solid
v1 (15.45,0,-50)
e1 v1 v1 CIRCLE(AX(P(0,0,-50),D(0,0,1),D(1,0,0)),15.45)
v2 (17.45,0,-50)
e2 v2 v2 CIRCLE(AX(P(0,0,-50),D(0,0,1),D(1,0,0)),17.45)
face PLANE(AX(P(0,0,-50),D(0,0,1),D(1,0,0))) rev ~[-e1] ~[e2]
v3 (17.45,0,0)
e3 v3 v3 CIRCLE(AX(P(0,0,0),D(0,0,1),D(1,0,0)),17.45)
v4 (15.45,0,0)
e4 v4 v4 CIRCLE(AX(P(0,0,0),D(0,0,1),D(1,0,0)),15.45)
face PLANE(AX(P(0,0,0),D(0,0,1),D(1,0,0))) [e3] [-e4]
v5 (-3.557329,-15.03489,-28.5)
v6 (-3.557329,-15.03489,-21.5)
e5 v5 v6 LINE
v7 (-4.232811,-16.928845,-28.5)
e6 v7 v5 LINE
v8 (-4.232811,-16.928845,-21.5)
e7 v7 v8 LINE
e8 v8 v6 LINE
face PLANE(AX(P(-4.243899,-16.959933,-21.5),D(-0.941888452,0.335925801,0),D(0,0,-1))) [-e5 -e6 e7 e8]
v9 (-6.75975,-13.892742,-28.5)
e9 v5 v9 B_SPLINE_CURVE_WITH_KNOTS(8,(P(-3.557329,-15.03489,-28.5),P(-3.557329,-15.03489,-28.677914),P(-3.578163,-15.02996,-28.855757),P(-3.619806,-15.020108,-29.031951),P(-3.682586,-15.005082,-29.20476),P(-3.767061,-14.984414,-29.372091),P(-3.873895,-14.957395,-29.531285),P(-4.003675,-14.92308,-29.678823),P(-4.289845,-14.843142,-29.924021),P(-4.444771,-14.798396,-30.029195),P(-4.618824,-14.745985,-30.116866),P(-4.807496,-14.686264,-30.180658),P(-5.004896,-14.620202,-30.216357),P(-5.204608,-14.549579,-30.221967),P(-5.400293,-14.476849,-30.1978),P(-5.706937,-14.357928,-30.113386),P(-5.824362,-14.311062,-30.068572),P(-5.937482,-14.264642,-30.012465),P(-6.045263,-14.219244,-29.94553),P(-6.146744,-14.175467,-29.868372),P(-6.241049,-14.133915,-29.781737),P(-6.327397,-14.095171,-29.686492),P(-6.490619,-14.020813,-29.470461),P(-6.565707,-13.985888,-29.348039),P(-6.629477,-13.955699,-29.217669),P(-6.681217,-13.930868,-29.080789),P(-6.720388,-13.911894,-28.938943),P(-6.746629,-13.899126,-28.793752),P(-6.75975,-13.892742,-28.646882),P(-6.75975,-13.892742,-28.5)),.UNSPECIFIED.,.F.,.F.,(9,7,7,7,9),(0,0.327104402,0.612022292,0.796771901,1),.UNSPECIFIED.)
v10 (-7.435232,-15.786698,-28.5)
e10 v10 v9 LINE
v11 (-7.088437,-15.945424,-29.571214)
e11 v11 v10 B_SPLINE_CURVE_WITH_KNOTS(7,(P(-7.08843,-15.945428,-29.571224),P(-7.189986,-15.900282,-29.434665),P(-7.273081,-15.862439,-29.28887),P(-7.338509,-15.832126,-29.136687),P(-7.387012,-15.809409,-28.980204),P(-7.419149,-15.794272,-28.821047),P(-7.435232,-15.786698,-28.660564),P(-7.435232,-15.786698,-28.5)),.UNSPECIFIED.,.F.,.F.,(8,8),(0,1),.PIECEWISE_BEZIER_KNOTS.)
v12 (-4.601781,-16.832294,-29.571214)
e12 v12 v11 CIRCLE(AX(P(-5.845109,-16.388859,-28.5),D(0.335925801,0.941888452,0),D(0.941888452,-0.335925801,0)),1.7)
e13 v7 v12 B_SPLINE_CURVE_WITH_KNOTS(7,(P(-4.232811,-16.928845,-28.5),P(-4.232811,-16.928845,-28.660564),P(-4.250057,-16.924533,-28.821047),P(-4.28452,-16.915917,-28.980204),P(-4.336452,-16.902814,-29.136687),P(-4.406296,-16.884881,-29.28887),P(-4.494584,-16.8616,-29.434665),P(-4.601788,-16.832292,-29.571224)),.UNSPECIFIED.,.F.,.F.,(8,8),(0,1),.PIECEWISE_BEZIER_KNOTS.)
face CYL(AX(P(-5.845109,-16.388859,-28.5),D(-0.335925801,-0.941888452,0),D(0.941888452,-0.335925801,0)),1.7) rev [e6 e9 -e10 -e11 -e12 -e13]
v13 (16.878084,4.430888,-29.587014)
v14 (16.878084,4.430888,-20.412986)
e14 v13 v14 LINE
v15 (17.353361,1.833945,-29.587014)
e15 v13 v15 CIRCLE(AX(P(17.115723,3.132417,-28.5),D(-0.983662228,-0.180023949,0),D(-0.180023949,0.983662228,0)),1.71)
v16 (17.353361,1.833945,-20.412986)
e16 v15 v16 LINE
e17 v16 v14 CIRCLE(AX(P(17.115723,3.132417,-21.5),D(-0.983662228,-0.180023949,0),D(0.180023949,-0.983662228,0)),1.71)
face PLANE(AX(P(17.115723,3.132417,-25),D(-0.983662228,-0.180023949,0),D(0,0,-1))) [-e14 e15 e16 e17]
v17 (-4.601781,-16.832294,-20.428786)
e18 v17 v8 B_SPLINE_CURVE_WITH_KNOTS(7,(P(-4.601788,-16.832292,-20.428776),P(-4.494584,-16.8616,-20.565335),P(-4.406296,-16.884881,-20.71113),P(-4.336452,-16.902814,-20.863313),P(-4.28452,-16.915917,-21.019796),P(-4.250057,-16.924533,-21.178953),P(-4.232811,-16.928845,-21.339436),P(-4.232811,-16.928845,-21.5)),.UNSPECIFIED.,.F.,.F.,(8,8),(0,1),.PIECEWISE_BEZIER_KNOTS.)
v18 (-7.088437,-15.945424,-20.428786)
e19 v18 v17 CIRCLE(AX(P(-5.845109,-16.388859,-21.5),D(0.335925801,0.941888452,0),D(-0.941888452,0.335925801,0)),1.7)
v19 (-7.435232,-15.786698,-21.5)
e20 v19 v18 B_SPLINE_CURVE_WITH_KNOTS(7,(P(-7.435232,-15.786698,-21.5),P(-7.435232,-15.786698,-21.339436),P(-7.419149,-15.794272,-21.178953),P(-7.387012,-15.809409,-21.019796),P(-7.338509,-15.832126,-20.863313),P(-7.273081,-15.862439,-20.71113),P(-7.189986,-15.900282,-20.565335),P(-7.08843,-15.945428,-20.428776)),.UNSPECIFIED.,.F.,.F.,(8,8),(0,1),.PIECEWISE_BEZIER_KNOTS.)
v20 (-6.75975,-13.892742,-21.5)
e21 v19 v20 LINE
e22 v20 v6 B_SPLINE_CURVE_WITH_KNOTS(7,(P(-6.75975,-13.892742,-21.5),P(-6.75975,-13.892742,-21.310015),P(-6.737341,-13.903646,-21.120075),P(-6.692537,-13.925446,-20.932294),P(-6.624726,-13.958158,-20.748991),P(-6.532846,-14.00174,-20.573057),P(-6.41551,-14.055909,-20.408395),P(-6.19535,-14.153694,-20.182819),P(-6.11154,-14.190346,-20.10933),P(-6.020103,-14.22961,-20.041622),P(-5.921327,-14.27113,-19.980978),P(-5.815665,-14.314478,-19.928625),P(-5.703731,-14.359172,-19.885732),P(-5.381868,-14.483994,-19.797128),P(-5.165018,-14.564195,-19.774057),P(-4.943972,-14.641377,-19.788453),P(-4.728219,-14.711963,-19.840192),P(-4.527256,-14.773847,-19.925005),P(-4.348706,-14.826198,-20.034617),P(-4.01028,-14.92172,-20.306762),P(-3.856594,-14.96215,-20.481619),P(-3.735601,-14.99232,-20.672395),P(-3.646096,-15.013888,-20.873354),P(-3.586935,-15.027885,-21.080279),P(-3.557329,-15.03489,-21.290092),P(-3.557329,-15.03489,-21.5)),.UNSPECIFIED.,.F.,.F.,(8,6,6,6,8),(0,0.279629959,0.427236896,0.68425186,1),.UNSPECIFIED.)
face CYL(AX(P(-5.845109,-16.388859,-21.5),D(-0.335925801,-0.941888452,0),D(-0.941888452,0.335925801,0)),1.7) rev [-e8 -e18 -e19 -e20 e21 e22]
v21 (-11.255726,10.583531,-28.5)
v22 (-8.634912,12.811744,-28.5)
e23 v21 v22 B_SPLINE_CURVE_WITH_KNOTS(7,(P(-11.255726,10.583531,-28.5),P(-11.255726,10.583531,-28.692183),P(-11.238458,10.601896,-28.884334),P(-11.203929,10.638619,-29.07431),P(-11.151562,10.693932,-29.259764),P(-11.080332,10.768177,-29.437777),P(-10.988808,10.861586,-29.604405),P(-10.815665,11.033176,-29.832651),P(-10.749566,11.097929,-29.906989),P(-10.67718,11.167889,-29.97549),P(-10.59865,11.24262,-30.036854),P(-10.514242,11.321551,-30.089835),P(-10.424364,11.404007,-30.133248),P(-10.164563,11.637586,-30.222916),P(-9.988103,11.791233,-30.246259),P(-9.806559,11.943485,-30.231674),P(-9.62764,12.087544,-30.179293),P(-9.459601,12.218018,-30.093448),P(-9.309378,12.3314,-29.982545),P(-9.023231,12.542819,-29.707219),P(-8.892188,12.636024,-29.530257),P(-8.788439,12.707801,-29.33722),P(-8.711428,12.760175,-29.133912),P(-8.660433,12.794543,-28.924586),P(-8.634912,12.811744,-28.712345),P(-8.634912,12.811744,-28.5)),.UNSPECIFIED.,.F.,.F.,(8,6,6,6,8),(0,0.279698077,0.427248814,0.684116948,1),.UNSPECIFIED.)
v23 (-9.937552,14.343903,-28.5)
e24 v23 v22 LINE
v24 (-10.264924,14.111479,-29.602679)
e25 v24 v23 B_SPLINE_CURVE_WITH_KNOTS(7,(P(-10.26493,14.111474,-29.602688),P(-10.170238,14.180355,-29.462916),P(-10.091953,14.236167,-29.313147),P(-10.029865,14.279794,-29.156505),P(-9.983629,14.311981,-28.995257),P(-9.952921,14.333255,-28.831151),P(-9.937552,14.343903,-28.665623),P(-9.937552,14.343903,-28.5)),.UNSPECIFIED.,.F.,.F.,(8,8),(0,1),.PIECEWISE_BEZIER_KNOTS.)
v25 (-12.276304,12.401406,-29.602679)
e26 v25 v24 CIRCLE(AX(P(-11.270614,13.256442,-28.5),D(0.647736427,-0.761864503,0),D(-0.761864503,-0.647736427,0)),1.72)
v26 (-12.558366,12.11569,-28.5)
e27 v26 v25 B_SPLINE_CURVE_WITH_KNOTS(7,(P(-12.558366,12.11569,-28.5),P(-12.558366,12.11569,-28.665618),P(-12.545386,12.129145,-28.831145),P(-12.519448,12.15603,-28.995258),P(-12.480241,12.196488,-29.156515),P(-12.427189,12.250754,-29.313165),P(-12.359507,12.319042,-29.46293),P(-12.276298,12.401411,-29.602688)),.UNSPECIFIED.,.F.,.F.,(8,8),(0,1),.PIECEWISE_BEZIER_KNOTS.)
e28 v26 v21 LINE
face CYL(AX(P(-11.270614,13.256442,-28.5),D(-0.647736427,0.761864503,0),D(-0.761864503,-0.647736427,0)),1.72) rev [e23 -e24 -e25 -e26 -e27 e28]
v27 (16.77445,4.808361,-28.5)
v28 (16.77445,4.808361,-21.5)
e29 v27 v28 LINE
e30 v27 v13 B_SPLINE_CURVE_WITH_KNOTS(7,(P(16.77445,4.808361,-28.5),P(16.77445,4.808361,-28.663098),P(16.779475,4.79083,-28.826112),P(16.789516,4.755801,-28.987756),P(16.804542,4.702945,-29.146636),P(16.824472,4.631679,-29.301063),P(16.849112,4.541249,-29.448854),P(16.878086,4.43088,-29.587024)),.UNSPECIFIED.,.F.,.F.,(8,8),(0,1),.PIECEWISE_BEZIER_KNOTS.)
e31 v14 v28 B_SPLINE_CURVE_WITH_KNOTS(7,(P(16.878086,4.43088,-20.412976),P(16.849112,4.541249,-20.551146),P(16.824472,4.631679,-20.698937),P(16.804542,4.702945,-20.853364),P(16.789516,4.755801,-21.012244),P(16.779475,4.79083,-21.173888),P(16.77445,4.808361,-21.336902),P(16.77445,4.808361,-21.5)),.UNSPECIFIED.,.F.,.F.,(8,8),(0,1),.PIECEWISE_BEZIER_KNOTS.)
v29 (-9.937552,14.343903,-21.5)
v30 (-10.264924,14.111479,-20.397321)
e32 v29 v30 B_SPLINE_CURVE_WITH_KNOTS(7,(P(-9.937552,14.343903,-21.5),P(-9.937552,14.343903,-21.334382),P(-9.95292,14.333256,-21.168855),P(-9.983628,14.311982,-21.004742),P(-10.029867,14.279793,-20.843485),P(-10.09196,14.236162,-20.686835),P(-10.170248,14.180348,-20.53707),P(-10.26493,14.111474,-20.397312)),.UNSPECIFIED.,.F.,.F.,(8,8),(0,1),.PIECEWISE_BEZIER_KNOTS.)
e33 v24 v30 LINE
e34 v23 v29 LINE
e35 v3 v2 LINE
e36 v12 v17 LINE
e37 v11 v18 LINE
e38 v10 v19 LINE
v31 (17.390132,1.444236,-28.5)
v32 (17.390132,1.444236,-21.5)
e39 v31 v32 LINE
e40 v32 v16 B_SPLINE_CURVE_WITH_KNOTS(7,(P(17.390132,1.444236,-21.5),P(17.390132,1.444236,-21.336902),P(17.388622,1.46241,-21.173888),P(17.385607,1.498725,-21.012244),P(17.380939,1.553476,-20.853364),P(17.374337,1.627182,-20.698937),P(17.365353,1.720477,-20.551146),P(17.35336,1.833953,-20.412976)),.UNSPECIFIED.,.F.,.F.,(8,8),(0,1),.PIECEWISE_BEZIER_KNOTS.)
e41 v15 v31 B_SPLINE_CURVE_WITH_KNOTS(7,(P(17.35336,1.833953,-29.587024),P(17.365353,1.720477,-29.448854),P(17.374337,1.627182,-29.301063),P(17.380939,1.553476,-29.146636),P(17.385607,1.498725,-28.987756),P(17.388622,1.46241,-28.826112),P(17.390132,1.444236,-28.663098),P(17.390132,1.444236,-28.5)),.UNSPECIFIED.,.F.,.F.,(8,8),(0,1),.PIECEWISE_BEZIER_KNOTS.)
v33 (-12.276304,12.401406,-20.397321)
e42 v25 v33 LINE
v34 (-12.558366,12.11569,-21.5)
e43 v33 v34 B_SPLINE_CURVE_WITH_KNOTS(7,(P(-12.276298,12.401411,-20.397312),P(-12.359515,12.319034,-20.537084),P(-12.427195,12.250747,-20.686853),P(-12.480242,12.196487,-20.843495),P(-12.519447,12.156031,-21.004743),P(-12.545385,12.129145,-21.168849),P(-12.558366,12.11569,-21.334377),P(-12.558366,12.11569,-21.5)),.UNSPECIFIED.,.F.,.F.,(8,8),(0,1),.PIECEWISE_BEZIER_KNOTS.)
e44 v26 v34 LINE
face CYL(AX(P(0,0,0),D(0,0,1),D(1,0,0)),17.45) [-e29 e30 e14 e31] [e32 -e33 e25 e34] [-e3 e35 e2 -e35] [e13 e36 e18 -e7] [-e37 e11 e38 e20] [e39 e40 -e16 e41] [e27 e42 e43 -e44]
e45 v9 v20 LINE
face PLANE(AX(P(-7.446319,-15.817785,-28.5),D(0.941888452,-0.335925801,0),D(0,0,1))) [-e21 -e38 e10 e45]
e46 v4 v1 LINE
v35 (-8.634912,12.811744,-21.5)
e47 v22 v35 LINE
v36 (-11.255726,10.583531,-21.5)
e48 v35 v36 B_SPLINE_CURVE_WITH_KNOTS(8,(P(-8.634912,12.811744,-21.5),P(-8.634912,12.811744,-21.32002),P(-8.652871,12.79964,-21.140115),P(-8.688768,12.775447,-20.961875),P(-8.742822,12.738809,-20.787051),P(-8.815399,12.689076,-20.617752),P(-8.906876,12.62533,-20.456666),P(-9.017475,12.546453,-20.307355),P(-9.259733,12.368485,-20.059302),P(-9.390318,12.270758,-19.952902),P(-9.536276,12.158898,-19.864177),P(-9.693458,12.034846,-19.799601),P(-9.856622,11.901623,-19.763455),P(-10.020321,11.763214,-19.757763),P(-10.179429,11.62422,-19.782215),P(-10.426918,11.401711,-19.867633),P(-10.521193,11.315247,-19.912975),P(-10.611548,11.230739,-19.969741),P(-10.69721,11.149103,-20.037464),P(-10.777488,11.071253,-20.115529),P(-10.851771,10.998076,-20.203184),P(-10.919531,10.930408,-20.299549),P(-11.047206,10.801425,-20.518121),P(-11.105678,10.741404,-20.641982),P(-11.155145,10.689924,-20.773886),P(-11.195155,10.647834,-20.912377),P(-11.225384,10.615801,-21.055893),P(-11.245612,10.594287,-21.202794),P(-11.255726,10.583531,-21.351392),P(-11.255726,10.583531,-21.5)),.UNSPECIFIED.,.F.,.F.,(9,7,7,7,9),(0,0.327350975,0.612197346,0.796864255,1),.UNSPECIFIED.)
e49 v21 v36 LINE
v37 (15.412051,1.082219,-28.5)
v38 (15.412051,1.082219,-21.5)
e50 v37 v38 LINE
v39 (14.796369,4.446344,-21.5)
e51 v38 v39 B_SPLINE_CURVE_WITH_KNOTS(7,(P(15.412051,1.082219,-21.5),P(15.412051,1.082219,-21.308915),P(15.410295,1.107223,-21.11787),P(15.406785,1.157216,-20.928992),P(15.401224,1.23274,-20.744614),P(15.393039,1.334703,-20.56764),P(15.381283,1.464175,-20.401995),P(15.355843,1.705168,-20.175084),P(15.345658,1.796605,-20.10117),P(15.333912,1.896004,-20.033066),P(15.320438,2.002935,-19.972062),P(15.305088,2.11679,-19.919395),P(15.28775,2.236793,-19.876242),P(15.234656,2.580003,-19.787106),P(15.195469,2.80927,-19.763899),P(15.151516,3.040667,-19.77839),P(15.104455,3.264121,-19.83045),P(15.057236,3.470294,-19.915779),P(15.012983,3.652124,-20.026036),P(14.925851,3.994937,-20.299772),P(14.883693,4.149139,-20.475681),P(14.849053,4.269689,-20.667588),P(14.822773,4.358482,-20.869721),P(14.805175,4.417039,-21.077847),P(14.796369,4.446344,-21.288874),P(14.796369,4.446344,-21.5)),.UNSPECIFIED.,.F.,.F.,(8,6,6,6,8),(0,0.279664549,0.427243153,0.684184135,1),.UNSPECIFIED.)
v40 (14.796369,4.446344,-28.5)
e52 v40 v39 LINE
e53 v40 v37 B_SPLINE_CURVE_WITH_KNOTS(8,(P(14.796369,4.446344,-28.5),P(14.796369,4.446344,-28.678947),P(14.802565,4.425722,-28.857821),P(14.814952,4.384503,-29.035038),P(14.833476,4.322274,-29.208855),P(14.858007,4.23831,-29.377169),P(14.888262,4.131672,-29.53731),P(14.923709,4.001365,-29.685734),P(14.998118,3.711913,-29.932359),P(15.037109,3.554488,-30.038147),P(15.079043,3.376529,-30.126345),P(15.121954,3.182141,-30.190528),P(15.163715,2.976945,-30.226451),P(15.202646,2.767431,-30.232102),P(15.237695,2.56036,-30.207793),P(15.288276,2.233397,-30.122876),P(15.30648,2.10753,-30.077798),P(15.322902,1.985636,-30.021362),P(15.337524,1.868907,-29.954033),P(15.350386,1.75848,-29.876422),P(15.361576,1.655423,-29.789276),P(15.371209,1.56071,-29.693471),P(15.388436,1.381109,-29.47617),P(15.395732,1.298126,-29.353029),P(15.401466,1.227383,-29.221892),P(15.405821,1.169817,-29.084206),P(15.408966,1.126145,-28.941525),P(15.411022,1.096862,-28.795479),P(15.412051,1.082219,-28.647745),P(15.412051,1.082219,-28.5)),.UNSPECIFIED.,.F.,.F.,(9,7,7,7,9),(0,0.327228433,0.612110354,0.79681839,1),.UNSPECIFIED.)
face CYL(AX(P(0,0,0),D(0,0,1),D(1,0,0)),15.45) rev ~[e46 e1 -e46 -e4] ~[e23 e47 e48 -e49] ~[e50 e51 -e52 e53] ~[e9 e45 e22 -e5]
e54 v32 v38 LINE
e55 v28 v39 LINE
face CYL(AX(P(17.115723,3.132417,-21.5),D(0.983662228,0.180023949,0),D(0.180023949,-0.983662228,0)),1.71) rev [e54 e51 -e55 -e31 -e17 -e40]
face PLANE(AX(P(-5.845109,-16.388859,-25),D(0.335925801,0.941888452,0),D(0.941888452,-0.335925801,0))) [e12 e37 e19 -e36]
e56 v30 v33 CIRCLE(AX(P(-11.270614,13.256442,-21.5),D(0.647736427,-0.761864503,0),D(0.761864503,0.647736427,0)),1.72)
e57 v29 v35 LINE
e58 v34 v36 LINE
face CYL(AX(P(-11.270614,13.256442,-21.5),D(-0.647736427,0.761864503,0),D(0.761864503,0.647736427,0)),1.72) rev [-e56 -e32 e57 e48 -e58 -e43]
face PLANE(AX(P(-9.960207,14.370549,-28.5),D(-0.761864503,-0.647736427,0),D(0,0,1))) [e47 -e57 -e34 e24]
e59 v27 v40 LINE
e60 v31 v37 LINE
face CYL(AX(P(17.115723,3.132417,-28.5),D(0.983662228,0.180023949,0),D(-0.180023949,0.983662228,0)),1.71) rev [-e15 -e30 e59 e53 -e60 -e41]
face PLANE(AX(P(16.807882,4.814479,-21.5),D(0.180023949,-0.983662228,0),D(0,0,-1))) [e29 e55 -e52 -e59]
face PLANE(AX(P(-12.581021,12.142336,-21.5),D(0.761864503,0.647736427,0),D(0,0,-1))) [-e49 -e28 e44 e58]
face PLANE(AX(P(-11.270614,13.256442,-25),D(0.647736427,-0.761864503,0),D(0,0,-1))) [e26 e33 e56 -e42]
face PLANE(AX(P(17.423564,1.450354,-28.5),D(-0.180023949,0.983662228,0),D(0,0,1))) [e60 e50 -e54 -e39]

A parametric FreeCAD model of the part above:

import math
import FreeCAD as App
import Part
import Sketcher
from FreeCAD import Vector

doc = App.newDocument("Part")
body = doc.addObject("PartDesign::Body", "Body")

sketch1 = body.newObject("Sketcher::SketchObject", "Sketch")
sketch1.AttachmentSupport = (doc.getObject("XY_Plane"), [""])
sketch1.MapMode = "FlatFace"
sketch1.addGeometry(Part.Circle(Vector(0, 0, 0), Vector(0, 0, 1), 17.45), False)
sketch1.addGeometry(Part.Circle(Vector(0, 0, 0), Vector(0, 0, 1), 15.45), False)
sketch1.addConstraint(Sketcher.Constraint("Coincident", 0, 3, -1, 1))
sketch1.addConstraint(Sketcher.Constraint("Coincident", 1, 3, -1, 1))
sketch1.addConstraint(Sketcher.Constraint("Diameter", 0, 34.9))
sketch1.addConstraint(Sketcher.Constraint("Diameter", 1, 30.9))
pad1 = body.newObject("PartDesign::Pad", "Pad")
pad1.Profile = sketch1
pad1.Length = 50
pad1.Reversed = True

sketch2 = body.newObject("Sketcher::SketchObject", "Sketch001")
sketch2.Placement = App.Placement(Vector(-5.845109, -16.388859, 0), App.Rotation(Vector(-0.941888452, 0.335925801, 0), Vector(0, 0, -1), Vector(-0.335925801, -0.941888452, 0), "ZXY"))
sketch2.addGeometry(Part.LineSegment(Vector(1.7, 21.5, 0), Vector(1.7, 28.5, 0)), False)
sketch2.addGeometry(Part.ArcOfCircle(Part.Circle(Vector(0, 28.5, 0), Vector(0, 0, 1), 1.7), math.radians(0), math.radians(180)), False)
sketch2.addGeometry(Part.LineSegment(Vector(-1.7, 28.5, 0), Vector(-1.7, 21.5, 0)), False)
sketch2.addGeometry(Part.ArcOfCircle(Part.Circle(Vector(0, 21.5, 0), Vector(0, 0, 1), 1.7), math.radians(180), math.radians(360)), False)
sketch2.addConstraint(Sketcher.Constraint("Tangent", 0, 2, 1, 1))
sketch2.addConstraint(Sketcher.Constraint("Tangent", 1, 2, 2, 1))
sketch2.addConstraint(Sketcher.Constraint("Tangent", 2, 2, 3, 1))
sketch2.addConstraint(Sketcher.Constraint("Tangent", 3, 2, 0, 1))
sketch2.addConstraint(Sketcher.Constraint("Vertical", 0))
sketch2.addConstraint(Sketcher.Constraint("Vertical", 2))
sketch2.addConstraint(Sketcher.Constraint("PointOnObject", 1, 3, -2))
sketch2.addConstraint(Sketcher.Constraint("Radius", 1, 1.7))
sketch2.addConstraint(Sketcher.Constraint("DistanceY", 0, 1, 0, 2, 7.0))
sketch2.addConstraint(Sketcher.Constraint("DistanceY", -1, 1, 1, 3, 28.5))
pocket1 = body.newObject("PartDesign::Pocket", "Pocket")
pocket1.Profile = sketch2
pocket1.Type = "UpToFirst"

sketch3 = body.newObject("Sketcher::SketchObject", "Sketch002")
sketch3.Placement = App.Placement(Vector(17.115723, 3.132417, 0), App.Rotation(Vector(0, 0, 1), Vector(0.180023949, -0.983662228, 0), Vector(0.983662228, 0.180023949, 0), "ZXY"))
sketch3.addGeometry(Part.LineSegment(Vector(-21.5, 1.71, 0), Vector(-28.5, 1.71, 0)), False)
sketch3.addGeometry(Part.ArcOfCircle(Part.Circle(Vector(-28.5, 0, 0), Vector(0, 0, 1), 1.71), math.radians(90), math.radians(270)), False)
sketch3.addGeometry(Part.LineSegment(Vector(-28.5, -1.71, 0), Vector(-21.5, -1.71, 0)), False)
sketch3.addGeometry(Part.ArcOfCircle(Part.Circle(Vector(-21.5, 0, 0), Vector(0, 0, 1), 1.71), math.radians(-90), math.radians(90)), False)
sketch3.addConstraint(Sketcher.Constraint("Tangent", 0, 2, 1, 1))
sketch3.addConstraint(Sketcher.Constraint("Tangent", 1, 2, 2, 1))
sketch3.addConstraint(Sketcher.Constraint("Tangent", 2, 2, 3, 1))
sketch3.addConstraint(Sketcher.Constraint("Tangent", 3, 2, 0, 1))
sketch3.addConstraint(Sketcher.Constraint("Horizontal", 0))
sketch3.addConstraint(Sketcher.Constraint("Horizontal", 2))
sketch3.addConstraint(Sketcher.Constraint("PointOnObject", 1, 3, -1))
sketch3.addConstraint(Sketcher.Constraint("DistanceX", 0, 2, 0, 1, 7.0))
sketch3.addConstraint(Sketcher.Constraint("Radius", 1, 1.71))
sketch3.addConstraint(Sketcher.Constraint("DistanceX", 1, 3, -1, 1, 28.5))
pocket2 = body.newObject("PartDesign::Pocket", "Pocket001")
pocket2.Profile = sketch3
pocket2.Length = 2.044923

sketch4 = body.newObject("Sketcher::SketchObject", "Sketch003")
sketch4.Placement = App.Placement(Vector(-11.270614, 13.256442, 0), App.Rotation(Vector(0, 0, 1), Vector(0.761864503, 0.647736427, 0), Vector(-0.647736427, 0.761864503, 0), "ZXY"))
sketch4.addGeometry(Part.LineSegment(Vector(-21.5, 1.72, 0), Vector(-28.5, 1.72, 0)), False)
sketch4.addGeometry(Part.ArcOfCircle(Part.Circle(Vector(-28.5, 0, 0), Vector(0, 0, 1), 1.72), math.radians(90), math.radians(270)), False)
sketch4.addGeometry(Part.LineSegment(Vector(-28.5, -1.72, 0), Vector(-21.5, -1.72, 0)), False)
sketch4.addGeometry(Part.ArcOfCircle(Part.Circle(Vector(-21.5, 0, 0), Vector(0, 0, 1), 1.72), math.radians(-90), math.radians(90)), False)
sketch4.addConstraint(Sketcher.Constraint("Tangent", 0, 2, 1, 1))
sketch4.addConstraint(Sketcher.Constraint("Tangent", 1, 2, 2, 1))
sketch4.addConstraint(Sketcher.Constraint("Tangent", 2, 2, 3, 1))
sketch4.addConstraint(Sketcher.Constraint("Tangent", 3, 2, 0, 1))
sketch4.addConstraint(Sketcher.Constraint("Horizontal", 0))
sketch4.addConstraint(Sketcher.Constraint("Horizontal", 2))
sketch4.addConstraint(Sketcher.Constraint("PointOnObject", 1, 3, -1))
sketch4.addConstraint(Sketcher.Constraint("DistanceX", 0, 2, 0, 1, 7.0))
sketch4.addConstraint(Sketcher.Constraint("Radius", 1, 1.72))
sketch4.addConstraint(Sketcher.Constraint("DistanceX", 1, 3, -1, 1, 28.5))
pocket3 = body.newObject("PartDesign::Pocket", "Pocket002")
pocket3.Profile = sketch4
pocket3.Type = "UpToFirst"

doc.recompute()
